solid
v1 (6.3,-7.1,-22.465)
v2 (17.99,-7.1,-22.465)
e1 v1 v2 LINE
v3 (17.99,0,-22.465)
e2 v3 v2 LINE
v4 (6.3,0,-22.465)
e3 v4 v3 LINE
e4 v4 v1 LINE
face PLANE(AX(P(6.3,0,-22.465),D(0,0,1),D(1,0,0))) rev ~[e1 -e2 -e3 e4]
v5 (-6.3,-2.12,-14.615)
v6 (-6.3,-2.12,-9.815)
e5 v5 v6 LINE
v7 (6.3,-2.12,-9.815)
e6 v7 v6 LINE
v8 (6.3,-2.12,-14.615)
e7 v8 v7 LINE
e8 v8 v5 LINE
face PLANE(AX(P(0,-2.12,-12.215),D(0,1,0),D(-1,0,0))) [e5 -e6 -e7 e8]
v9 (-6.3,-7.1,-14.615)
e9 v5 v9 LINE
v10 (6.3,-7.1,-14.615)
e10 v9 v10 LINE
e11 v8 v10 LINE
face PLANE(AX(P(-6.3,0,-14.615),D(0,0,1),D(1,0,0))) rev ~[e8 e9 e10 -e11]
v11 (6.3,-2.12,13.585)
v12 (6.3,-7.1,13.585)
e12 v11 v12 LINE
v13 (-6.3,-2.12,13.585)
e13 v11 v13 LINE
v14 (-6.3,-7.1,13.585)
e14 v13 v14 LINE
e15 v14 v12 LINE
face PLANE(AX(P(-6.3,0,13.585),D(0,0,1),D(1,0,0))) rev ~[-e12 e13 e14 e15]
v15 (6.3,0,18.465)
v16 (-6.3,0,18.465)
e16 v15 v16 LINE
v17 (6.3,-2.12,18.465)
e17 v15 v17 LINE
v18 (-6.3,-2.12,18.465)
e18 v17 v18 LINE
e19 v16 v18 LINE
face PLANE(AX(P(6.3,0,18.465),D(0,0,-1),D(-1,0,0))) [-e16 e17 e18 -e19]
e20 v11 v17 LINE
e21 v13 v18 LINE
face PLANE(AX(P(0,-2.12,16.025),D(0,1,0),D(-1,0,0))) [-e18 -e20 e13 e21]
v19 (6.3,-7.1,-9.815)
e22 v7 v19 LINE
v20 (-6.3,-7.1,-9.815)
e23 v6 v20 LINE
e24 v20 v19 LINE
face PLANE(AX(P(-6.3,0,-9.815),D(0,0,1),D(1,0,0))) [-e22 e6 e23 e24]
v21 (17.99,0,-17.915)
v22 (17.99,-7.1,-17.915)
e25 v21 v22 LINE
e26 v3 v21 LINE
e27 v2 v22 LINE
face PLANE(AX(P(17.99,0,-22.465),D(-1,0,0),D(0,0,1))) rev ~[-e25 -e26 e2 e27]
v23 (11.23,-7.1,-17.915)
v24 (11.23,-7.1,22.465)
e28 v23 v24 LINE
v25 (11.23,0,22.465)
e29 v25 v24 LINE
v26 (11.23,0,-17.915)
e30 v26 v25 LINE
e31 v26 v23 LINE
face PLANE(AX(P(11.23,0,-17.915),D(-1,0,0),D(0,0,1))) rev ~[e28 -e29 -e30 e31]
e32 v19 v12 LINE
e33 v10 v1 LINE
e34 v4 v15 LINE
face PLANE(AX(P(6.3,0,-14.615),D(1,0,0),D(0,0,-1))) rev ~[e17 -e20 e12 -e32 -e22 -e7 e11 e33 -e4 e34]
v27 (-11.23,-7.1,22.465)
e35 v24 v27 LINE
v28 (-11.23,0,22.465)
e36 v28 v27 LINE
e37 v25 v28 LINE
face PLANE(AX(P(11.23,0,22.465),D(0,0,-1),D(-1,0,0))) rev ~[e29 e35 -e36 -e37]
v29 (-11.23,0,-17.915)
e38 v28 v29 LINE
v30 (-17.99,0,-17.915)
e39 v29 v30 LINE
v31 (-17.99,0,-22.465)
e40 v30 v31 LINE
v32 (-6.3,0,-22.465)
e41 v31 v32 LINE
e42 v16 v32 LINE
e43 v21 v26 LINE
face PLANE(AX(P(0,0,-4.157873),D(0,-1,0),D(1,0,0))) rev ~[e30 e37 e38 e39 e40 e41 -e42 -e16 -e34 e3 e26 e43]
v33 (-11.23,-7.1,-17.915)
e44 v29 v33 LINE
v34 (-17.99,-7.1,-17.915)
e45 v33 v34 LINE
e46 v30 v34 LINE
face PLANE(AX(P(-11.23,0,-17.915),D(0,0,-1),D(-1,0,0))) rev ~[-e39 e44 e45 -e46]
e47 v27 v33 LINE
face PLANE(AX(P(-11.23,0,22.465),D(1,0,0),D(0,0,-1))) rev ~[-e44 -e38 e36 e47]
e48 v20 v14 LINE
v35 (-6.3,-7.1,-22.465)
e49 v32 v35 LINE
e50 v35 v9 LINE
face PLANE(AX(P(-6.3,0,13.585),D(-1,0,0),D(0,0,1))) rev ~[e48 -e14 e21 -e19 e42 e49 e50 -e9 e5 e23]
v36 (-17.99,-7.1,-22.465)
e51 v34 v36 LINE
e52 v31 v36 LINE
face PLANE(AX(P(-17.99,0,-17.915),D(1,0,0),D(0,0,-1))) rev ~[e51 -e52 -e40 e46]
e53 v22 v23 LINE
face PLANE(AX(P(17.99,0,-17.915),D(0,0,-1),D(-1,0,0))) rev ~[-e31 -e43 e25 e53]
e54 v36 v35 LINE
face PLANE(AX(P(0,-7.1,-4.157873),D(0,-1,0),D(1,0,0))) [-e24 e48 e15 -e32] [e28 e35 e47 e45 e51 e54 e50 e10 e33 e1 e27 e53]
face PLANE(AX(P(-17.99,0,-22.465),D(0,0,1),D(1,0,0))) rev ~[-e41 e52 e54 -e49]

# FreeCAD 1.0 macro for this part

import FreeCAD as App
import Part
import Sketcher
Q = App.Units.Quantity


def add_polygon(sketch, points):
    """Adds a closed chain of lines whose ends are joined by coincident constraints."""
    first, n = sketch.GeometryCount, len(points)
    for a, b in zip(points, points[1:] + points[:1]):
        sketch.addGeometry(Part.LineSegment(App.Vector(*a, 0), App.Vector(*b, 0)), False)
    for i in range(n):
        sketch.addConstraint(Sketcher.Constraint("Coincident", first + i, 2, first + (i + 1) % n, 1))

doc = App.newDocument("Part")
params = doc.addObject("Spreadsheet::Sheet", "Params")
for row, (alias, value) in enumerate([
    ("sketch1_width", "12.6 mm"),
    ("sketch1_height", "23.4 mm"),
    ("sketch1_width2", "22.46 mm"),
    ("sketch1_width3", "6.76 mm"),
    ("sketch1_height2", "40.38 mm"),
    ("pad1_length", "7.1 mm"),
    ("sketch2_width", "12.6 mm"),
    ("sketch2_height", "4.8 mm"),
    ("sketch2_height2", "4.88 mm"),
    ("pocket1_length", "2.12 mm"),
], start=1):
    params.set(f"A{row}", alias)
    params.set(f"B{row}", "=" + value)
    params.setAlias(f"B{row}", alias)

body = doc.addObject("PartDesign::Body", "Body")

sketch1 = body.newObject("Sketcher::SketchObject", "Sketch")
sketch1.AttachmentSupport = (doc.getObject("XZ_Plane"), [""])
sketch1.MapMode = "FlatFace"
add_polygon(sketch1, [(11.2, 22.5), (-11.2, 22.5), (-11.2, -17.9), (-18, -17.9), (-18, -22.5), (-6.3, -22.5), (-6.3, -14.6), (6.3, -14.6), (6.3, -22.5), (18, -22.5), (18, -17.9), (11.2, -17.9)])
add_polygon(sketch1, [(6.3, -9.8), (-6.3, -9.8), (-6.3, 13.6), (6.3, 13.6)])
sketch1.addConstraint([
    Sketcher.Constraint("Horizontal", 0),
    Sketcher.Constraint("Vertical", 1),
    Sketcher.Constraint("Horizontal", 2),
    Sketcher.Constraint("Vertical", 3),
    Sketcher.Constraint("Horizontal", 4),
    Sketcher.Constraint("Vertical", 5),
    Sketcher.Constraint("Horizontal", 6),
    Sketcher.Constraint("Vertical", 7),
    Sketcher.Constraint("Horizontal", 8),
    Sketcher.Constraint("Vertical", 9),
    Sketcher.Constraint("Horizontal", 10),
    Sketcher.Constraint("Vertical", 11),
    Sketcher.Constraint("Horizontal", 12),
    Sketcher.Constraint("Vertical", 13),
    Sketcher.Constraint("Horizontal", 14),
    Sketcher.Constraint("Vertical", 15),
    Sketcher.Constraint("Symmetric", 4, 2, 7, 2, -2),
    Sketcher.Constraint("Symmetric", 2, 2, 9, 2, -2),
    Sketcher.Constraint("Vertical", 5, 2, 12, 2),
    Sketcher.Constraint("Vertical", 7, 2, 14, 2),
    Sketcher.Constraint("Equal", 2, 10),
    Sketcher.Constraint("DistanceX", 6, 1, 6, 2, Q("12.6 mm")),
    Sketcher.Constraint("DistanceY", 13, 1, 13, 2, Q("23.4 mm")),
    Sketcher.Constraint("DistanceX", 0, 2, 0, 1, Q("22.46 mm")),
    Sketcher.Constraint("DistanceX", 2, 2, 2, 1, Q("6.76 mm")),
    Sketcher.Constraint("DistanceY", 1, 2, 1, 1, Q("40.38 mm")),
    Sketcher.Constraint("DistanceY", 3, 2, 3, 1, Q("4.55 mm")),
    Sketcher.Constraint("DistanceY", 5, 1, 5, 2, Q("7.85 mm")),
    Sketcher.Constraint("DistanceY", 5, 2, 12, 2, Q("4.8 mm")),
    Sketcher.Constraint("DistanceY", -1, 1, 0, 2, Q("22.465 mm")),
])
sketch1.setExpression("Constraints[37]", "Params.sketch1_width")
sketch1.setExpression("Constraints[38]", "Params.sketch1_height")
sketch1.setExpression("Constraints[39]", "Params.sketch1_width2")
sketch1.setExpression("Constraints[40]", "Params.sketch1_width3")
sketch1.setExpression("Constraints[41]", "Params.sketch1_height2")
pad1 = body.newObject("PartDesign::Pad", "Pad")
pad1.Profile = sketch1
pad1.setExpression("Length", "Params.pad1_length")

sketch2 = body.newObject("Sketcher::SketchObject", "Sketch001")
sketch2.AttachmentSupport = (doc.getObject("XZ_Plane"), [""])
sketch2.MapMode = "FlatFace"
add_polygon(sketch2, [(6.3, -9.8), (6.3, -14.6), (-6.3, -14.6), (-6.3, -9.8)])
add_polygon(sketch2, [(6.3, 18.5), (6.3, 13.6), (-6.3, 13.6), (-6.3, 18.5)])
sketch2.addConstraint([
    Sketcher.Constraint("Vertical", 0),
    Sketcher.Constraint("Horizontal", 1),
    Sketcher.Constraint("Vertical", 2),
    Sketcher.Constraint("Horizontal", 3),
    Sketcher.Constraint("Vertical", 4),
    Sketcher.Constraint("Horizontal", 5),
    Sketcher.Constraint("Vertical", 6),
    Sketcher.Constraint("Horizontal", 7),
    Sketcher.Constraint("Vertical", 3, 2, 4, 2),
    Sketcher.Constraint("Vertical", 2, 2, 5, 2),
    Sketcher.Constraint("DistanceX", 1, 2, 1, 1, Q("12.6 mm")),
    Sketcher.Constraint("DistanceY", 0, 2, 0, 1, Q("4.8 mm")),
    Sketcher.Constraint("DistanceY", 4, 2, 4, 1, Q("4.88 mm")),
    Sketcher.Constraint("DistanceX", -1, 1, 0, 2, Q("6.3 mm")),
    Sketcher.Constraint("DistanceY", 3, 2, 4, 2, Q("23.4 mm")),
    Sketcher.Constraint("DistanceY", 0, 2, -1, 1, Q("14.615 mm")),
])
sketch2.setExpression("Constraints[18]", "Params.sketch2_width")
sketch2.setExpression("Constraints[19]", "Params.sketch2_height")
sketch2.setExpression("Constraints[20]", "Params.sketch2_height2")
pocket1 = body.newObject("PartDesign::Pocket", "Pocket")
pocket1.Profile = sketch2
pocket1.setExpression("Length", "Params.pocket1_length")
pocket1.Reversed = True

doc.recompute()
